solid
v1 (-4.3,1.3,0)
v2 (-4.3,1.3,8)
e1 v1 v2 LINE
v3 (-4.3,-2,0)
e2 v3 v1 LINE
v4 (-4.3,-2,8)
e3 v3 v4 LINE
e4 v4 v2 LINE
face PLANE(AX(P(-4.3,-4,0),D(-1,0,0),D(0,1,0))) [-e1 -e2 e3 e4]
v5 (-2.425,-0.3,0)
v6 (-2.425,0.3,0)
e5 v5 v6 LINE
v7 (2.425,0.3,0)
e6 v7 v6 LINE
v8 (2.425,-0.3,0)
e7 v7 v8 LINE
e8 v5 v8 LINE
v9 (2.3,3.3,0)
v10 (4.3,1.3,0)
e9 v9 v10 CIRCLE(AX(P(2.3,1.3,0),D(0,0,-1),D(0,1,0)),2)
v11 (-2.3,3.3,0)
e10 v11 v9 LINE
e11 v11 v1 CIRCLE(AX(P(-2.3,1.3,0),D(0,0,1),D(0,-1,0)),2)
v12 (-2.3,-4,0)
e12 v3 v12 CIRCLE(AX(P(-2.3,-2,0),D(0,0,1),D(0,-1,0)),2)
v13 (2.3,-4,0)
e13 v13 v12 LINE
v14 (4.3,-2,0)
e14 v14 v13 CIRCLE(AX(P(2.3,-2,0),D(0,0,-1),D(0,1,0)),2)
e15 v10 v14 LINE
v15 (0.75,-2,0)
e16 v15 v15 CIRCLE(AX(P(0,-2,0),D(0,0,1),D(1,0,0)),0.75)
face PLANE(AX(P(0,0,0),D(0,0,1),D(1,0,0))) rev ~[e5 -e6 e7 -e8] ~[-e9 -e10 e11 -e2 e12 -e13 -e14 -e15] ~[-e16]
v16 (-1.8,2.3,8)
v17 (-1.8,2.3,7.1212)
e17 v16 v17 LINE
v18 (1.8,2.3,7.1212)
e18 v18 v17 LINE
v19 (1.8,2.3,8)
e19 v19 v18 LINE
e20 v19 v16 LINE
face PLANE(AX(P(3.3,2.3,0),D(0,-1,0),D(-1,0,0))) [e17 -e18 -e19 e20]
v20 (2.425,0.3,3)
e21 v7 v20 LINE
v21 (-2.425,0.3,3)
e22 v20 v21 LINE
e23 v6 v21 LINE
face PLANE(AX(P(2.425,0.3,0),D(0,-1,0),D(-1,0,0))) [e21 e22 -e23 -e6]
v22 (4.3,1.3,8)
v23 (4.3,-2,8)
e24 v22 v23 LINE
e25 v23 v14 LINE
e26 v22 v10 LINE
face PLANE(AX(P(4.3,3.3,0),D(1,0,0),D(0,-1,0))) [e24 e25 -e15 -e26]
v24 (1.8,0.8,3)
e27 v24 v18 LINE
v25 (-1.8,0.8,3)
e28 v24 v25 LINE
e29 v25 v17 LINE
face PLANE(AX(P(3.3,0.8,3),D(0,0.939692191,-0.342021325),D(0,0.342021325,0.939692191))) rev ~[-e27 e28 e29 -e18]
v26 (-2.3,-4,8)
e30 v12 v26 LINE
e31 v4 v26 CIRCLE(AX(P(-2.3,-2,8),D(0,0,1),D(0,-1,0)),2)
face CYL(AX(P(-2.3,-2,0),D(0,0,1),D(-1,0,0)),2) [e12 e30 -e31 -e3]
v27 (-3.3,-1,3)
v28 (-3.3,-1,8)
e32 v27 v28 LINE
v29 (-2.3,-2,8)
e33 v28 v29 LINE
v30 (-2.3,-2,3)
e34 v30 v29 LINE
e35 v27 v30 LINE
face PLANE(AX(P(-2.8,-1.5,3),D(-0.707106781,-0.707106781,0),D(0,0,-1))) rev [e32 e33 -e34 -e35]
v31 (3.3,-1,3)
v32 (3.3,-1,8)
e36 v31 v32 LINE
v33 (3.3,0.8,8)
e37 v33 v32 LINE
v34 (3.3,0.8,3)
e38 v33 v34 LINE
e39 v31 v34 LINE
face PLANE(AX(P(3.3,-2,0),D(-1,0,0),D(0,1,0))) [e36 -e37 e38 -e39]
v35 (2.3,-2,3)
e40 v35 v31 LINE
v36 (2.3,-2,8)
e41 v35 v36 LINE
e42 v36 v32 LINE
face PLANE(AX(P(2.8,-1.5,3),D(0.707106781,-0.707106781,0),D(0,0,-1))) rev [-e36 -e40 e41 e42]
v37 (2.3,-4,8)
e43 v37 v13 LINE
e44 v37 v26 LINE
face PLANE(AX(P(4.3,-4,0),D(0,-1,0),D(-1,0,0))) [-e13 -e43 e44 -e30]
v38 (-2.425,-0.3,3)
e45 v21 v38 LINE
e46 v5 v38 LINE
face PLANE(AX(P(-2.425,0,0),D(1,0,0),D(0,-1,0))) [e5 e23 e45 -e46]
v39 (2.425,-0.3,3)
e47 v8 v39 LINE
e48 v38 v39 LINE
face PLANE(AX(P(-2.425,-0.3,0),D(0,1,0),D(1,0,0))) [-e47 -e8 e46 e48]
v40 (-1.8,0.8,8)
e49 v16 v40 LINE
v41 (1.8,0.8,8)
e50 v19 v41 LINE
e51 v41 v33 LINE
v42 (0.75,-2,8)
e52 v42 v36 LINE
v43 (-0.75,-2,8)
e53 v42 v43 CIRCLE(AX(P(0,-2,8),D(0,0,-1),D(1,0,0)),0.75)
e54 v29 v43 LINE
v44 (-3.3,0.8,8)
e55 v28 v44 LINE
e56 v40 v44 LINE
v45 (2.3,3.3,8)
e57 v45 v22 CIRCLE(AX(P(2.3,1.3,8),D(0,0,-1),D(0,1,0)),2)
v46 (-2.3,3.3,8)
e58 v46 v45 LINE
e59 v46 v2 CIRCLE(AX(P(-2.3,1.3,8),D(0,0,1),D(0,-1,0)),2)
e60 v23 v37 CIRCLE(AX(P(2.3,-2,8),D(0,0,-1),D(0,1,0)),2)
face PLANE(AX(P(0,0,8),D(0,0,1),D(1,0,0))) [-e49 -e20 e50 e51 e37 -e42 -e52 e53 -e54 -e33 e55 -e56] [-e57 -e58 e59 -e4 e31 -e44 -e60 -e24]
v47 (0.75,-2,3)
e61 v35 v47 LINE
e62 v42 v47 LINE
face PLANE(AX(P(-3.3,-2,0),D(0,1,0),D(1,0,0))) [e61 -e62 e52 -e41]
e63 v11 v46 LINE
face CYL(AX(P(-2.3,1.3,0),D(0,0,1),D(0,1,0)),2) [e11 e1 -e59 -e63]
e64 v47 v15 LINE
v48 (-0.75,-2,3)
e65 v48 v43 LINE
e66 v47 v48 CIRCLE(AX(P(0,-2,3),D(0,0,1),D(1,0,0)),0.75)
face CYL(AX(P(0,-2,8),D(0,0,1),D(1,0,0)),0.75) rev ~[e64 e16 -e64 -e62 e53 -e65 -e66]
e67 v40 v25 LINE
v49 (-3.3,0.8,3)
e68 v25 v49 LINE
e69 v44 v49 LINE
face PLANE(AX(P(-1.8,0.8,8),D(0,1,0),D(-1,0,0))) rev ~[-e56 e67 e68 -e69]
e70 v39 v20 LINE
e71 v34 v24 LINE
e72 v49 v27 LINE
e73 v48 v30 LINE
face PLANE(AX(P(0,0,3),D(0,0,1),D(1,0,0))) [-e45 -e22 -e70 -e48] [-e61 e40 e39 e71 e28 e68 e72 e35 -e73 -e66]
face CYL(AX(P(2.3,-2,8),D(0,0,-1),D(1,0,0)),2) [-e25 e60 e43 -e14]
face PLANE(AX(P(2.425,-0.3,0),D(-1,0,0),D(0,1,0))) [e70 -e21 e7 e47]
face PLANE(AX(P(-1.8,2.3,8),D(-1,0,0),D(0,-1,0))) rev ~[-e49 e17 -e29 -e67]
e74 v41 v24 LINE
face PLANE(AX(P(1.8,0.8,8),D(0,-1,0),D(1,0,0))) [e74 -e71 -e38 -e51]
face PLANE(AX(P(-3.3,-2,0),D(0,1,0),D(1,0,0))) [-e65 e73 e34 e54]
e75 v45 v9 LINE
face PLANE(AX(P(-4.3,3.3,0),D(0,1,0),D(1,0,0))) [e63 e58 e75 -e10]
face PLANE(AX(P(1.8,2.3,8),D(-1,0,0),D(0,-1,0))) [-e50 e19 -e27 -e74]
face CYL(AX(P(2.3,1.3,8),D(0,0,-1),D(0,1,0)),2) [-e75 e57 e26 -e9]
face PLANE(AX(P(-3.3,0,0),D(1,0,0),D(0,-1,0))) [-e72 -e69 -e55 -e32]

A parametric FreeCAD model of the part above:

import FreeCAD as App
import Part
import Sketcher
Q = App.Units.Quantity


def edges_at(feature, points):
    """Names of the edges that pass closest to the given points."""
    edges = feature.Shape.Edges
    near = lambda p: min(range(len(edges)), key=lambda i: edges[i].distToShape(Part.Vertex(*p))[0])
    return sorted({f"Edge{near(p) + 1}" for p in points})

doc = App.newDocument("Part")
body = doc.addObject("PartDesign::Body", "Body")

sketch1 = body.newObject("Sketcher::SketchObject", "Sketch")
sketch1.AttachmentSupport = (doc.getObject("XY_Plane"), [""])
sketch1.MapMode = "FlatFace"
sketch1.addGeometry([
    Part.LineSegment(App.Vector(4.3, 3.3, 0), App.Vector(-4.3, 3.3, 0)),
    Part.LineSegment(App.Vector(-4.3, 3.3, 0), App.Vector(-4.3, -4, 0)),
    Part.LineSegment(App.Vector(-4.3, -4, 0), App.Vector(4.3, -4, 0)),
    Part.LineSegment(App.Vector(4.3, -4, 0), App.Vector(4.3, 3.3, 0)),
    Part.LineSegment(App.Vector(2.425, -0.3, 0), App.Vector(-2.425, -0.3, 0)),
    Part.LineSegment(App.Vector(-2.425, -0.3, 0), App.Vector(-2.425, 0.3, 0)),
    Part.LineSegment(App.Vector(-2.425, 0.3, 0), App.Vector(2.425, 0.3, 0)),
    Part.LineSegment(App.Vector(2.425, 0.3, 0), App.Vector(2.425, -0.3, 0)),
], False)
sketch1.addConstraint([
    Sketcher.Constraint("Coincident", 0, 2, 1, 1),
    Sketcher.Constraint("Coincident", 1, 2, 2, 1),
    Sketcher.Constraint("Coincident", 2, 2, 3, 1),
    Sketcher.Constraint("Coincident", 3, 2, 0, 1),
    Sketcher.Constraint("Coincident", 4, 2, 5, 1),
    Sketcher.Constraint("Coincident", 5, 2, 6, 1),
    Sketcher.Constraint("Coincident", 6, 2, 7, 1),
    Sketcher.Constraint("Coincident", 7, 2, 4, 1),
    Sketcher.Constraint("Horizontal", 0),
    Sketcher.Constraint("Vertical", 1),
    Sketcher.Constraint("Horizontal", 2),
    Sketcher.Constraint("Vertical", 3),
    Sketcher.Constraint("Horizontal", 4),
    Sketcher.Constraint("Vertical", 5),
    Sketcher.Constraint("Horizontal", 6),
    Sketcher.Constraint("Vertical", 7),
    Sketcher.Constraint("Symmetric", 4, 2, 6, 2, -1, 1),
    Sketcher.Constraint("DistanceY", 5, 1, 5, 2, 0.6),
    Sketcher.Constraint("DistanceX", 4, 2, 4, 1, 4.85),
    Sketcher.Constraint("DistanceX", 0, 2, 0, 1, 8.6),
    Sketcher.Constraint("DistanceY", 1, 2, 1, 1, 7.3),
    Sketcher.Constraint("DistanceY", 1, 2, -1, 1, 4.0),
    Sketcher.Constraint("DistanceX", 0, 2, -1, 1, 4.3),
])
pad1 = body.newObject("PartDesign::Pad", "Pad")
pad1.Profile = sketch1
pad1.Length = 3

sketch2 = body.newObject("Sketcher::SketchObject", "Sketch001")
sketch2.AttachmentSupport = (doc.getObject("XY_Plane"), [""])
sketch2.MapMode = "FlatFace"
sketch2.addGeometry([
    Part.LineSegment(App.Vector(4.3, 3.3, 0), App.Vector(-4.3, 3.3, 0)),
    Part.LineSegment(App.Vector(-4.3, 3.3, 0), App.Vector(-4.3, -4, 0)),
    Part.LineSegment(App.Vector(-4.3, -4, 0), App.Vector(4.3, -4, 0)),
    Part.LineSegment(App.Vector(4.3, -4, 0), App.Vector(4.3, 3.3, 0)),
    Part.LineSegment(App.Vector(-3.3, -2, 0), App.Vector(-3.3, 2.3, 0)),
    Part.LineSegment(App.Vector(-3.3, 2.3, 0), App.Vector(3.3, 2.3, 0)),
    Part.LineSegment(App.Vector(3.3, 2.3, 0), App.Vector(3.3, -2, 0)),
    Part.LineSegment(App.Vector(3.3, -2, 0), App.Vector(-3.3, -2, 0)),
], False)
sketch2.addConstraint([
    Sketcher.Constraint("Coincident", 0, 2, 1, 1),
    Sketcher.Constraint("Coincident", 1, 2, 2, 1),
    Sketcher.Constraint("Coincident", 2, 2, 3, 1),
    Sketcher.Constraint("Coincident", 3, 2, 0, 1),
    Sketcher.Constraint("Coincident", 4, 2, 5, 1),
    Sketcher.Constraint("Coincident", 5, 2, 6, 1),
    Sketcher.Constraint("Coincident", 6, 2, 7, 1),
    Sketcher.Constraint("Coincident", 7, 2, 4, 1),
    Sketcher.Constraint("Horizontal", 0),
    Sketcher.Constraint("Vertical", 1),
    Sketcher.Constraint("Horizontal", 2),
    Sketcher.Constraint("Vertical", 3),
    Sketcher.Constraint("Vertical", 4),
    Sketcher.Constraint("Horizontal", 5),
    Sketcher.Constraint("Vertical", 6),
    Sketcher.Constraint("Horizontal", 7),
    Sketcher.Constraint("DistanceX", 5, 1, 5, 2, 6.6),
    Sketcher.Constraint("DistanceY", 6, 2, -1, 1, 2.0),
    Sketcher.Constraint("DistanceX", 0, 2, 4, 2, 1.0),
    Sketcher.Constraint("DistanceY", 4, 2, 0, 2, 1.0),
    Sketcher.Constraint("DistanceX", 5, 2, 3, 2, 1.0),
    Sketcher.Constraint("DistanceY", 2, 2, 6, 2, 2.0),
    Sketcher.Constraint("DistanceY", 1, 2, 1, 1, 7.3),
    Sketcher.Constraint("DistanceX", 0, 2, -1, 1, 4.3),
])
pad2 = body.newObject("PartDesign::Pad", "Pad001")
pad2.Profile = sketch2
pad2.Length = 8

sketch3 = body.newObject("Sketcher::SketchObject", "Sketch002")
sketch3.AttachmentSupport = (doc.getObject("YZ_Plane"), [""])
sketch3.MapMode = "FlatFace"
sketch3.AttachmentOffset = App.Placement(App.Vector(0, 0, 3.3), App.Rotation())
sketch3.addGeometry([
    Part.LineSegment(App.Vector(2.3, 3, 0), App.Vector(0.8, 3, 0)),
    Part.LineSegment(App.Vector(0.8, 3, 0), App.Vector(2.3, 7.1212, 0)),
    Part.LineSegment(App.Vector(2.3, 7.1212, 0), App.Vector(2.3, 3, 0)),
], False)
sketch3.addConstraint([
    Sketcher.Constraint("Coincident", 0, 2, 1, 1),
    Sketcher.Constraint("Coincident", 1, 2, 2, 1),
    Sketcher.Constraint("Coincident", 2, 2, 0, 1),
    Sketcher.Constraint("Horizontal", 0),
    Sketcher.Constraint("Vertical", 2),
    Sketcher.Constraint("Angle", 1, Q("70 deg")),
    Sketcher.Constraint("DistanceX", 0, 2, 0, 1, 1.5),
    Sketcher.Constraint("DistanceY", -1, 1, 0, 2, 3.0),
    Sketcher.Constraint("DistanceX", -1, 1, 0, 2, 0.8),
])
pad3 = body.newObject("PartDesign::Pad", "Pad002")
pad3.Profile = sketch3
pad3.Length = 7
pad3.Reversed = True

sketch4 = body.newObject("Sketcher::SketchObject", "Sketch003")
sketch4.AttachmentSupport = (doc.getObject("XY_Plane"), [""])
sketch4.MapMode = "FlatFace"
sketch4.AttachmentOffset = App.Placement(App.Vector(0, 0, 8), App.Rotation())
sketch4.addGeometry([
    Part.LineSegment(App.Vector(1.8, 0.8, 0), App.Vector(3.3, 0.8, 0)),
    Part.LineSegment(App.Vector(3.3, 0.8, 0), App.Vector(3.3, 2.3, 0)),
    Part.LineSegment(App.Vector(3.3, 2.3, 0), App.Vector(1.8, 2.3, 0)),
    Part.LineSegment(App.Vector(1.8, 2.3, 0), App.Vector(1.8, 0.8, 0)),
    Part.LineSegment(App.Vector(-3.3, 2.3, 0), App.Vector(-3.3, 0.8, 0)),
    Part.LineSegment(App.Vector(-3.3, 0.8, 0), App.Vector(-1.8, 0.8, 0)),
    Part.LineSegment(App.Vector(-1.8, 0.8, 0), App.Vector(-1.8, 2.3, 0)),
    Part.LineSegment(App.Vector(-1.8, 2.3, 0), App.Vector(-3.3, 2.3, 0)),
], False)
sketch4.addConstraint([
    Sketcher.Constraint("Coincident", 0, 2, 1, 1),
    Sketcher.Constraint("Coincident", 1, 2, 2, 1),
    Sketcher.Constraint("Coincident", 2, 2, 3, 1),
    Sketcher.Constraint("Coincident", 3, 2, 0, 1),
    Sketcher.Constraint("Coincident", 4, 2, 5, 1),
    Sketcher.Constraint("Coincident", 5, 2, 6, 1),
    Sketcher.Constraint("Coincident", 6, 2, 7, 1),
    Sketcher.Constraint("Coincident", 7, 2, 4, 1),
    Sketcher.Constraint("Horizontal", 0),
    Sketcher.Constraint("Vertical", 1),
    Sketcher.Constraint("Horizontal", 2),
    Sketcher.Constraint("Vertical", 3),
    Sketcher.Constraint("Vertical", 4),
    Sketcher.Constraint("Horizontal", 5),
    Sketcher.Constraint("Vertical", 6),
    Sketcher.Constraint("Horizontal", 7),
    Sketcher.Constraint("Symmetric", 0, 2, 4, 2, -2),
    Sketcher.Constraint("Symmetric", 2, 2, 6, 2, -2),
    Sketcher.Constraint("Equal", 7, 1),
    Sketcher.Constraint("DistanceX", 0, 1, 0, 2, 1.5),
    Sketcher.Constraint("DistanceX", -1, 1, 0, 2, 3.3),
    Sketcher.Constraint("DistanceY", -1, 1, 0, 2, 0.8),
])
pad4 = body.newObject("PartDesign::Pad", "Pad003")
pad4.Profile = sketch4
pad4.Length = 5
pad4.Reversed = True
doc.recompute()

chamfer = body.newObject("PartDesign::Chamfer", "Chamfer")
chamfer.Base = (pad4, edges_at(pad4, [(-3.3, -2, 5.5)]))
chamfer.Size = 1
doc.recompute()

chamfer2 = body.newObject("PartDesign::Chamfer", "Chamfer001")
chamfer2.Base = (chamfer, edges_at(chamfer, [(3.3, -2, 5.5)]))
chamfer2.Size = 1

sketch5 = body.newObject("Sketcher::SketchObject", "Sketch004")
sketch5.AttachmentSupport = (doc.getObject("XY_Plane"), [""])
sketch5.MapMode = "FlatFace"
sketch5.AttachmentOffset = App.Placement(App.Vector(0, 0, 8), App.Rotation())
sketch5.addGeometry(Part.Circle(App.Vector(0, -2, 0), App.Vector(0, 0, 1), 0.75), False)
sketch5.addConstraint([
    Sketcher.Constraint("PointOnObject", 0, 3, -2),
    Sketcher.Constraint("Diameter", 0, 1.5),
    Sketcher.Constraint("DistanceY", 0, 3, -1, 1, 2.0),
])
pocket1 = body.newObject("PartDesign::Pocket", "Pocket")
pocket1.Profile = sketch5
pocket1.Length = 10
doc.recompute()

fillet = body.newObject("PartDesign::Fillet", "Fillet")
fillet.Base = (pocket1, edges_at(pocket1, [
    (-4.3, 3.3, 4),
    (4.3, 3.3, 4),
    (4.3, -4, 4),
    (-4.3, -4, 4),
]))
fillet.Radius = 2

doc.recompute()
